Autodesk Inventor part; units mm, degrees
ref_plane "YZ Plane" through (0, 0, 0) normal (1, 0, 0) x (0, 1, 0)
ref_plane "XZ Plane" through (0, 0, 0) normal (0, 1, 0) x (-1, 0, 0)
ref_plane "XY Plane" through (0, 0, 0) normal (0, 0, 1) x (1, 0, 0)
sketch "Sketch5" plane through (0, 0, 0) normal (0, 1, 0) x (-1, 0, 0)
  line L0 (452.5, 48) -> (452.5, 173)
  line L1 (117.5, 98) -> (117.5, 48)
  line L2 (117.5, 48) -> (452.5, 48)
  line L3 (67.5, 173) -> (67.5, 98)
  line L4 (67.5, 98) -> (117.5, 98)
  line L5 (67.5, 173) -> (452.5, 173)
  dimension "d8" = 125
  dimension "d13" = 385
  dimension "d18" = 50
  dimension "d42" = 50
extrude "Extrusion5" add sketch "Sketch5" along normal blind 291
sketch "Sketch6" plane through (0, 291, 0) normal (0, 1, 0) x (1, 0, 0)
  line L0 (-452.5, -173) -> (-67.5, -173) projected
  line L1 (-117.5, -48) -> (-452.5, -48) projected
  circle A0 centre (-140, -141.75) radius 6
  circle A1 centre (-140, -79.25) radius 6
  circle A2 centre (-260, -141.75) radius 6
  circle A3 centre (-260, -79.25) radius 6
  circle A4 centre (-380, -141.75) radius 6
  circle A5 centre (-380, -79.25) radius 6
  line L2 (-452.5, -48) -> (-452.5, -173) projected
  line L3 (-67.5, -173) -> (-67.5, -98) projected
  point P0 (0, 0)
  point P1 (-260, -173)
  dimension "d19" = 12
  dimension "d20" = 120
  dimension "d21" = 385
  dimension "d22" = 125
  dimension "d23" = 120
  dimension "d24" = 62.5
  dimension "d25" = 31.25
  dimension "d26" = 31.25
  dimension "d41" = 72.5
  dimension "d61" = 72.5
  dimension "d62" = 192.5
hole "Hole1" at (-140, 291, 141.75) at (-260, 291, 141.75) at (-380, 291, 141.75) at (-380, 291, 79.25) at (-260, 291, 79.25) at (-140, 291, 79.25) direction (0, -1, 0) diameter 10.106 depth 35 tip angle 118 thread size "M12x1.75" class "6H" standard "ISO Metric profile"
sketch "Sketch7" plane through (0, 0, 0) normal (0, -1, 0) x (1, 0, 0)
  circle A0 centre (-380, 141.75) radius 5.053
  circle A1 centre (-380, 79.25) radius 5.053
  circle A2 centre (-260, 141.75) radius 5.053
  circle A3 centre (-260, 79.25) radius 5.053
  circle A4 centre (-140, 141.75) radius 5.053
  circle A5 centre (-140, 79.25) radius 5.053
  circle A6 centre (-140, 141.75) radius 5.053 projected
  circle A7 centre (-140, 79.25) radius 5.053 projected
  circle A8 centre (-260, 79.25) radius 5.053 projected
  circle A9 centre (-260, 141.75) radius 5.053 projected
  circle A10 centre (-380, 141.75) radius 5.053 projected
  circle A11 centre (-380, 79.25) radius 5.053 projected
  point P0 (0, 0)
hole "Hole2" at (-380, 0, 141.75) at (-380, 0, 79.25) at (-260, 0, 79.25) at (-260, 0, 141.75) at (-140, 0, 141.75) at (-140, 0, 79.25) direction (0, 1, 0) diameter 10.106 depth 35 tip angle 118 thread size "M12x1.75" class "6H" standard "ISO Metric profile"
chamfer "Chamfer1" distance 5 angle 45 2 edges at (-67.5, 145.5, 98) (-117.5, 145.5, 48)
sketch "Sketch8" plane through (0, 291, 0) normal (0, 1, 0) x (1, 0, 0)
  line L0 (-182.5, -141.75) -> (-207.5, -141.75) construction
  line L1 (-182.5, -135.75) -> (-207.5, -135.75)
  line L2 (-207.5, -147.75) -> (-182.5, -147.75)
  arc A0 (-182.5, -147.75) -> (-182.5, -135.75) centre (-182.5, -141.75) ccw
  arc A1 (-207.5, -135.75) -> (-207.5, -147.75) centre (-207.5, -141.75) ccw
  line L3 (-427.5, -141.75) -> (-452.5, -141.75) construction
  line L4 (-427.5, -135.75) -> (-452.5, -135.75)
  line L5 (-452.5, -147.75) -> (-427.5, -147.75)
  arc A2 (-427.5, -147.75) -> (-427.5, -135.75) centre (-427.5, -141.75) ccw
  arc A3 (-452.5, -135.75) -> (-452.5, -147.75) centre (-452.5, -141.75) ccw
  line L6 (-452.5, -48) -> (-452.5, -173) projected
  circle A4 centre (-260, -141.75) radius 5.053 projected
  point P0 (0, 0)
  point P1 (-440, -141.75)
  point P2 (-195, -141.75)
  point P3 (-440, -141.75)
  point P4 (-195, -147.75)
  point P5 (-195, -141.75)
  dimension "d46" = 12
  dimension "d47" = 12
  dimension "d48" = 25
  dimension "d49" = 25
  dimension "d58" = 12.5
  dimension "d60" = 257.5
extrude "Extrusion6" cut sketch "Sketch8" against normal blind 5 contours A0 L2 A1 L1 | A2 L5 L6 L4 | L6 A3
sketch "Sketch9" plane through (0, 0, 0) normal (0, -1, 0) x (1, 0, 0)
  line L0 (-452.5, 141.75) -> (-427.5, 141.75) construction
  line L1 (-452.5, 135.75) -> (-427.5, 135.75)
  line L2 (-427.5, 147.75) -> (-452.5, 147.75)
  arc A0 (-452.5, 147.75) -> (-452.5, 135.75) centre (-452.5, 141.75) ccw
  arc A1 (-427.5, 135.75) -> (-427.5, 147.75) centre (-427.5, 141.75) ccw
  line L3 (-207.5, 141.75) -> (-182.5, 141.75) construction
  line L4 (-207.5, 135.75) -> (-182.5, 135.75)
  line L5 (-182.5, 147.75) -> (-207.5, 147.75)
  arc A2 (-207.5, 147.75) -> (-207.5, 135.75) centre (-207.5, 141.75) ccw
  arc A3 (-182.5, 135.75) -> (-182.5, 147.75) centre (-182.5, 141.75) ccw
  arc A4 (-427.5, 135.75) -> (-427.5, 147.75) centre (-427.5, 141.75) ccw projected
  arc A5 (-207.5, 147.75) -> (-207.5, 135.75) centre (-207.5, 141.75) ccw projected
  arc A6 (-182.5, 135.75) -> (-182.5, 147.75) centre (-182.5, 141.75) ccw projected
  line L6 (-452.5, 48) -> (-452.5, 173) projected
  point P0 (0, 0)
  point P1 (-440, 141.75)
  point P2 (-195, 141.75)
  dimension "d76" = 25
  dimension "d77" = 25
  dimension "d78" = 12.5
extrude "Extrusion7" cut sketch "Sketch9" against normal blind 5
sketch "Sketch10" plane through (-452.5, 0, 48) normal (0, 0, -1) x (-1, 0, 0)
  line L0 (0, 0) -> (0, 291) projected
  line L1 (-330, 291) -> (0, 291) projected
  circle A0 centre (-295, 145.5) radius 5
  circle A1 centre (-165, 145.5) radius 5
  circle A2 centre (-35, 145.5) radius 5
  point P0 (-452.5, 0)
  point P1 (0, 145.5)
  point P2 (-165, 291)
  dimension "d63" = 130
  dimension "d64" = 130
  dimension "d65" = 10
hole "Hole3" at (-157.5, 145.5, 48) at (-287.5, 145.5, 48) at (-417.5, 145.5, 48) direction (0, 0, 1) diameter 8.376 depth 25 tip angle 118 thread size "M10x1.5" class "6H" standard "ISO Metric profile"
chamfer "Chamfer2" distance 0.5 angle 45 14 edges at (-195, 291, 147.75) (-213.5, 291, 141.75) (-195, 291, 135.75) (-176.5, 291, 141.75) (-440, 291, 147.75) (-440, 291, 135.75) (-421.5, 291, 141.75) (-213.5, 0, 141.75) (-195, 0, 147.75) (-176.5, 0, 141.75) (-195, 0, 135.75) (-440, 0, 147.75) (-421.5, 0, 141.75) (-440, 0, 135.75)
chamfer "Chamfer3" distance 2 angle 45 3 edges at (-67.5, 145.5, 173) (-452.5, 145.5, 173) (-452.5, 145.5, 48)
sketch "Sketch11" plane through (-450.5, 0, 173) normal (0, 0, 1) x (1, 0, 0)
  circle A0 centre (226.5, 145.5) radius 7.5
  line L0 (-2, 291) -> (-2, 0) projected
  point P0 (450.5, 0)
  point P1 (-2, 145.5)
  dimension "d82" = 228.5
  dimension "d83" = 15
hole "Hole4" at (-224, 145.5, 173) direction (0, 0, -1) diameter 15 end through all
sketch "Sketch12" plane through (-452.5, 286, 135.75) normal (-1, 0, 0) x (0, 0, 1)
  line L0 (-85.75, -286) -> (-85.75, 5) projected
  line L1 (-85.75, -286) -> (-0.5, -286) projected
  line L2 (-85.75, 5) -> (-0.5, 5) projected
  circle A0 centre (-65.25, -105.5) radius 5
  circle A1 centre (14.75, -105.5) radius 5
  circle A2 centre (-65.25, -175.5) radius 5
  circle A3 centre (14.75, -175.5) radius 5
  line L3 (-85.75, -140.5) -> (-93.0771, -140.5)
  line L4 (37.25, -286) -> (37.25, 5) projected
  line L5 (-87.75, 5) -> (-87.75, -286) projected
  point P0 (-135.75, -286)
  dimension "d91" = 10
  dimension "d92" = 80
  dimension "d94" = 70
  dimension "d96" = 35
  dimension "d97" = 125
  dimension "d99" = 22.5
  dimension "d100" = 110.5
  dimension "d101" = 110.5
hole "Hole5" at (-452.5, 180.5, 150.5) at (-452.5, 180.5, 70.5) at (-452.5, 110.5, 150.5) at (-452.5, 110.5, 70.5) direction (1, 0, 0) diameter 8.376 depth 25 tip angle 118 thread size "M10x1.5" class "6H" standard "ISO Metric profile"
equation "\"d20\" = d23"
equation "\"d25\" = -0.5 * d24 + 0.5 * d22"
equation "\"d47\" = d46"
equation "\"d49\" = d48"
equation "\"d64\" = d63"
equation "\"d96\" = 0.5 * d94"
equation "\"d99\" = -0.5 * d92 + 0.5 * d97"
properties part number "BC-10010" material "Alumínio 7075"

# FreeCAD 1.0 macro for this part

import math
import FreeCAD as App
import Part
import Sketcher

V = App.Vector


def edges_at(feature, points):
    """Names of the edges that pass closest to the given points."""
    edges = feature.Shape.Edges
    near = lambda p: min(range(len(edges)), key=lambda i: edges[i].distToShape(Part.Vertex(*p))[0])
    return sorted({f"Edge{near(p) + 1}" for p in points})


def add_polygon(sketch, points):
    """Adds a closed chain of lines whose ends are joined by coincident constraints."""
    first, n = sketch.GeometryCount, len(points)
    for a, b in zip(points, points[1:] + points[:1]):
        sketch.addGeometry(Part.LineSegment(App.Vector(*a, 0), App.Vector(*b, 0)), False)
    for i in range(n):
        sketch.addConstraint(Sketcher.Constraint("Coincident", first + i, 2, first + (i + 1) % n, 1))

doc = App.newDocument("Part")
body = doc.addObject("PartDesign::Body", "Body")

# Sketch on XZ plane
sketch1 = body.newObject("Sketcher::SketchObject", "Sketch")
sketch1.AttachmentSupport = (doc.getObject("XZ_Plane"), [""])
sketch1.MapMode = "FlatFace"
add_polygon(sketch1, [(-117.5, 48), (-452.5, 48), (-452.5, 173), (-67.5, 173), (-67.5, 98), (-117.5, 98)])  # lines 0-5
sketch1.addConstraint(Sketcher.Constraint("Horizontal", 0))
sketch1.addConstraint(Sketcher.Constraint("Vertical", 1))
sketch1.addConstraint(Sketcher.Constraint("Horizontal", 2))
sketch1.addConstraint(Sketcher.Constraint("Vertical", 3))
sketch1.addConstraint(Sketcher.Constraint("Horizontal", 4))
sketch1.addConstraint(Sketcher.Constraint("Vertical", 5))
sketch1.addConstraint(Sketcher.Constraint("Equal", 4, 5))
sketch1.addConstraint(Sketcher.Constraint("DistanceX", 2, 1, 2, 2, 385.0))
sketch1.addConstraint(Sketcher.Constraint("DistanceX", 4, 2, 4, 1, 50.0))
sketch1.addConstraint(Sketcher.Constraint("DistanceY", 1, 1, 1, 2, 125.0))
sketch1.addConstraint(Sketcher.Constraint("DistanceY", -1, 1, 0, 2, 48.0))
sketch1.addConstraint(Sketcher.Constraint("DistanceX", 0, 2, -1, 1, 452.5))
pad1 = body.newObject("PartDesign::Pad", "Pad")
pad1.Profile = sketch1
pad1.Length = 291
pad1.Reversed = True

# Sketch on XZ plane
sketch2 = body.newObject("Sketcher::SketchObject", "Sketch001")
sketch2.AttachmentSupport = (doc.getObject("XZ_Plane"), [""])
sketch2.MapMode = "FlatFace"
sketch2.AttachmentOffset = App.Placement(V(0, 0, -291), App.Rotation())
sketch2.addGeometry(Part.Circle(V(-140, 141.75, 0), V(0, 0, 1), 5.053), False)
sketch2.addGeometry(Part.Circle(V(-260, 141.75, 0), V(0, 0, 1), 5.053), False)
sketch2.addGeometry(Part.Circle(V(-380, 141.75, 0), V(0, 0, 1), 5.053), False)
sketch2.addGeometry(Part.Circle(V(-380, 79.25, 0), V(0, 0, 1), 5.053), False)
sketch2.addGeometry(Part.Circle(V(-260, 79.25, 0), V(0, 0, 1), 5.053), False)
sketch2.addGeometry(Part.Circle(V(-140, 79.25, 0), V(0, 0, 1), 5.053), False)
sketch2.addConstraint(Sketcher.Constraint("Equal", 0, 1))
sketch2.addConstraint(Sketcher.Constraint("Equal", 1, 2))
sketch2.addConstraint(Sketcher.Constraint("Equal", 2, 3))
sketch2.addConstraint(Sketcher.Constraint("Equal", 3, 4))
sketch2.addConstraint(Sketcher.Constraint("Equal", 4, 5))
sketch2.addConstraint(Sketcher.Constraint("Horizontal", 0, 3, 1, 3))
sketch2.addConstraint(Sketcher.Constraint("Horizontal", 1, 3, 2, 3))
sketch2.addConstraint(Sketcher.Constraint("Horizontal", 3, 3, 4, 3))
sketch2.addConstraint(Sketcher.Constraint("Horizontal", 4, 3, 5, 3))
sketch2.addConstraint(Sketcher.Constraint("Vertical", 2, 3, 3, 3))
sketch2.addConstraint(Sketcher.Constraint("Vertical", 1, 3, 4, 3))
sketch2.addConstraint(Sketcher.Constraint("Vertical", 0, 3, 5, 3))
sketch2.addConstraint(Sketcher.Constraint("Diameter", 0, 10.106))
sketch2.addConstraint(Sketcher.Constraint("DistanceX", 0, 3, -1, 1, 140.0))
sketch2.addConstraint(Sketcher.Constraint("DistanceX", 1, 3, -1, 1, 260.0))
sketch2.addConstraint(Sketcher.Constraint("DistanceX", 2, 3, -1, 1, 380.0))
sketch2.addConstraint(Sketcher.Constraint("DistanceY", 3, 3, 2, 3, 62.5))
sketch2.addConstraint(Sketcher.Constraint("DistanceY", -1, 1, 0, 3, 141.75))
doc.recompute()
hole = body.newObject("PartDesign::Hole", "Hole")
hole.Profile = sketch2
hole.ThreadType = "None"
hole.Diameter = 10.106
hole.DepthType = "Dimension"
hole.Depth = 35
hole.DrillPoint = "Angled"
hole.DrillPointAngle = 118
hole.Reversed = True

# Sketch on XZ plane
sketch3 = body.newObject("Sketcher::SketchObject", "Sketch002")
sketch3.AttachmentSupport = (doc.getObject("XZ_Plane"), [""])
sketch3.MapMode = "FlatFace"
sketch3.addGeometry(Part.Circle(V(-380, 141.75, 0), V(0, 0, 1), 5.053), False)
sketch3.addGeometry(Part.Circle(V(-380, 79.25, 0), V(0, 0, 1), 5.053), False)
sketch3.addGeometry(Part.Circle(V(-260, 79.25, 0), V(0, 0, 1), 5.053), False)
sketch3.addGeometry(Part.Circle(V(-260, 141.75, 0), V(0, 0, 1), 5.053), False)
sketch3.addGeometry(Part.Circle(V(-140, 141.75, 0), V(0, 0, 1), 5.053), False)
sketch3.addGeometry(Part.Circle(V(-140, 79.25, 0), V(0, 0, 1), 5.053), False)
sketch3.addConstraint(Sketcher.Constraint("Equal", 0, 1))
sketch3.addConstraint(Sketcher.Constraint("Equal", 1, 2))
sketch3.addConstraint(Sketcher.Constraint("Equal", 2, 3))
sketch3.addConstraint(Sketcher.Constraint("Equal", 3, 4))
sketch3.addConstraint(Sketcher.Constraint("Equal", 4, 5))
sketch3.addConstraint(Sketcher.Constraint("Horizontal", 1, 3, 2, 3))
sketch3.addConstraint(Sketcher.Constraint("Horizontal", 0, 3, 3, 3))
sketch3.addConstraint(Sketcher.Constraint("Horizontal", 3, 3, 4, 3))
sketch3.addConstraint(Sketcher.Constraint("Horizontal", 2, 3, 5, 3))
sketch3.addConstraint(Sketcher.Constraint("Vertical", 0, 3, 1, 3))
sketch3.addConstraint(Sketcher.Constraint("Vertical", 2, 3, 3, 3))
sketch3.addConstraint(Sketcher.Constraint("Vertical", 4, 3, 5, 3))
sketch3.addConstraint(Sketcher.Constraint("Diameter", 0, 10.106))
sketch3.addConstraint(Sketcher.Constraint("DistanceX", 0, 3, -1, 1, 380.0))
sketch3.addConstraint(Sketcher.Constraint("DistanceX", 2, 3, -1, 1, 260.0))
sketch3.addConstraint(Sketcher.Constraint("DistanceX", 4, 3, -1, 1, 140.0))
sketch3.addConstraint(Sketcher.Constraint("DistanceY", 1, 3, 0, 3, 62.5))
sketch3.addConstraint(Sketcher.Constraint("DistanceY", -1, 1, 0, 3, 141.75))
doc.recompute()
hole2 = body.newObject("PartDesign::Hole", "Hole001")
hole2.Profile = sketch3
hole2.ThreadType = "None"
hole2.Diameter = 10.106
hole2.DepthType = "Dimension"
hole2.Depth = 35
hole2.DrillPoint = "Angled"
hole2.DrillPointAngle = 118
doc.recompute()

chamfer = body.newObject("PartDesign::Chamfer", "Chamfer")
chamfer.Base = (hole2, edges_at(hole2, [(-67.5, 145.5, 98), (-117.5, 145.5, 48)]))
chamfer.Size = 5

# Sketch on XZ plane
sketch4 = body.newObject("Sketcher::SketchObject", "Sketch003")
sketch4.AttachmentSupport = (doc.getObject("XZ_Plane"), [""])
sketch4.MapMode = "FlatFace"
sketch4.AttachmentOffset = App.Placement(V(0, 0, -291), App.Rotation())
sketch4.addGeometry(Part.ArcOfCircle(Part.Circle(V(-182.5, 141.75, 0), V(0, 0, 1), 6), math.radians(-90), math.radians(90)), False)
sketch4.addGeometry(Part.LineSegment(V(-182.5, 135.75, 0), V(-207.5, 135.75, 0)), False)
sketch4.addGeometry(Part.ArcOfCircle(Part.Circle(V(-207.5, 141.75, 0), V(0, 0, 1), 6), math.radians(90), math.radians(270)), False)
sketch4.addGeometry(Part.LineSegment(V(-207.5, 147.75, 0), V(-182.5, 147.75, 0)), False)
sketch4.addGeometry(Part.ArcOfCircle(Part.Circle(V(-427.5, 141.75, 0), V(0, 0, 1), 6), math.radians(-90), math.radians(90)), False)
sketch4.addGeometry(Part.LineSegment(V(-427.5, 135.75, 0), V(-452.5, 135.75, 0)), False)
sketch4.addGeometry(Part.ArcOfCircle(Part.Circle(V(-452.5, 141.75, 0), V(0, 0, 1), 6), math.radians(90), math.radians(270)), False)
sketch4.addGeometry(Part.LineSegment(V(-452.5, 147.75, 0), V(-427.5, 147.75, 0)), False)
sketch4.addConstraint(Sketcher.Constraint("Tangent", 0, 1, 1, 1))
sketch4.addConstraint(Sketcher.Constraint("Tangent", 1, 2, 2, 2))
sketch4.addConstraint(Sketcher.Constraint("Tangent", 2, 1, 3, 1))
sketch4.addConstraint(Sketcher.Constraint("Tangent", 3, 2, 0, 2))
sketch4.addConstraint(Sketcher.Constraint("Tangent", 4, 1, 5, 1))
sketch4.addConstraint(Sketcher.Constraint("Tangent", 5, 2, 6, 2))
sketch4.addConstraint(Sketcher.Constraint("Tangent", 6, 1, 7, 1))
sketch4.addConstraint(Sketcher.Constraint("Tangent", 7, 2, 4, 2))
sketch4.addConstraint(Sketcher.Constraint("Horizontal", 1))
sketch4.addConstraint(Sketcher.Constraint("Horizontal", 3))
sketch4.addConstraint(Sketcher.Constraint("Horizontal", 5))
sketch4.addConstraint(Sketcher.Constraint("Horizontal", 7))
sketch4.addConstraint(Sketcher.Constraint("Equal", 2, 4))
sketch4.addConstraint(Sketcher.Constraint("Horizontal", 2, 3, 4, 3))
sketch4.addConstraint(Sketcher.Constraint("Equal", 3, 5))
sketch4.addConstraint(Sketcher.Constraint("Radius", 0, 6.0))
sketch4.addConstraint(Sketcher.Constraint("DistanceX", 1, 2, 1, 1, 25.0))
sketch4.addConstraint(Sketcher.Constraint("DistanceX", 4, 3, 2, 3, 220.0))
sketch4.addConstraint(Sketcher.Constraint("DistanceX", 0, 3, -1, 1, 182.5))
sketch4.addConstraint(Sketcher.Constraint("DistanceY", -1, 1, 0, 3, 141.75))
pocket1 = body.newObject("PartDesign::Pocket", "Pocket")
pocket1.Profile = sketch4
pocket1.Length = 5
pocket1.Reversed = True

# Sketch on XZ plane
sketch5 = body.newObject("Sketcher::SketchObject", "Sketch004")
sketch5.AttachmentSupport = (doc.getObject("XZ_Plane"), [""])
sketch5.MapMode = "FlatFace"
sketch5.addGeometry(Part.LineSegment(V(-427.5, 147.75, 0), V(-452.5, 147.75, 0)), False)
sketch5.addGeometry(Part.ArcOfCircle(Part.Circle(V(-452.5, 141.75, 0), V(0, 0, 1), 6), math.radians(90), math.radians(270)), False)
sketch5.addGeometry(Part.LineSegment(V(-452.5, 135.75, 0), V(-427.5, 135.75, 0)), False)
sketch5.addGeometry(Part.ArcOfCircle(Part.Circle(V(-427.5, 141.75, 0), V(0, 0, 1), 6), math.radians(-90), math.radians(90)), False)
sketch5.addGeometry(Part.ArcOfCircle(Part.Circle(V(-207.5, 141.75, 0), V(0, 0, 1), 6), math.radians(90), math.radians(270)), False)
sketch5.addGeometry(Part.LineSegment(V(-207.5, 135.75, 0), V(-182.5, 135.75, 0)), False)
sketch5.addGeometry(Part.ArcOfCircle(Part.Circle(V(-182.5, 141.75, 0), V(0, 0, 1), 6), math.radians(-90), math.radians(90)), False)
sketch5.addGeometry(Part.LineSegment(V(-182.5, 147.75, 0), V(-207.5, 147.75, 0)), False)
sketch5.addConstraint(Sketcher.Constraint("Tangent", 0, 2, 1, 1))
sketch5.addConstraint(Sketcher.Constraint("Tangent", 1, 2, 2, 1))
sketch5.addConstraint(Sketcher.Constraint("Tangent", 2, 2, 3, 1))
sketch5.addConstraint(Sketcher.Constraint("Tangent", 3, 2, 0, 1))
sketch5.addConstraint(Sketcher.Constraint("Tangent", 4, 2, 5, 1))
sketch5.addConstraint(Sketcher.Constraint("Tangent", 5, 2, 6, 1))
sketch5.addConstraint(Sketcher.Constraint("Tangent", 6, 2, 7, 1))
sketch5.addConstraint(Sketcher.Constraint("Tangent", 7, 2, 4, 1))
sketch5.addConstraint(Sketcher.Constraint("Horizontal", 0))
sketch5.addConstraint(Sketcher.Constraint("Horizontal", 2))
sketch5.addConstraint(Sketcher.Constraint("Horizontal", 5))
sketch5.addConstraint(Sketcher.Constraint("Horizontal", 7))
sketch5.addConstraint(Sketcher.Constraint("Equal", 3, 4))
sketch5.addConstraint(Sketcher.Constraint("Horizontal", 3, 3, 4, 3))
sketch5.addConstraint(Sketcher.Constraint("Equal", 2, 5))
sketch5.addConstraint(Sketcher.Constraint("DistanceX", 0, 2, 0, 1, 25.0))
sketch5.addConstraint(Sketcher.Constraint("Radius", 1, 6.0))
sketch5.addConstraint(Sketcher.Constraint("DistanceX", 3, 3, 4, 3, 220.0))
sketch5.addConstraint(Sketcher.Constraint("DistanceX", 1, 3, -1, 1, 452.5))
sketch5.addConstraint(Sketcher.Constraint("DistanceY", -1, 1, 1, 3, 141.75))
pocket2 = body.newObject("PartDesign::Pocket", "Pocket001")
pocket2.Profile = sketch5
pocket2.Length = 5

# Sketch on XY plane
sketch6 = body.newObject("Sketcher::SketchObject", "Sketch005")
sketch6.AttachmentSupport = (doc.getObject("XY_Plane"), [""])
sketch6.MapMode = "FlatFace"
sketch6.AttachmentOffset = App.Placement(V(0, 0, 48), App.Rotation())
sketch6.addGeometry(Part.Circle(V(-157.5, 145.5, 0), V(0, 0, 1), 4.188), False)
sketch6.addGeometry(Part.Circle(V(-287.5, 145.5, 0), V(0, 0, 1), 4.188), False)
sketch6.addGeometry(Part.Circle(V(-417.5, 145.5, 0), V(0, 0, 1), 4.188), False)
sketch6.addConstraint(Sketcher.Constraint("Equal", 0, 1))
sketch6.addConstraint(Sketcher.Constraint("Equal", 1, 2))
sketch6.addConstraint(Sketcher.Constraint("Horizontal", 0, 3, 1, 3))
sketch6.addConstraint(Sketcher.Constraint("Horizontal", 1, 3, 2, 3))
sketch6.addConstraint(Sketcher.Constraint("Diameter", 0, 8.376))
sketch6.addConstraint(Sketcher.Constraint("DistanceX", 1, 3, 0, 3, 130.0))
sketch6.addConstraint(Sketcher.Constraint("DistanceX", 2, 3, 1, 3, 130.0))
sketch6.addConstraint(Sketcher.Constraint("DistanceX", 0, 3, -1, 1, 157.5))
sketch6.addConstraint(Sketcher.Constraint("DistanceY", -1, 1, 0, 3, 145.5))
doc.recompute()
hole3 = body.newObject("PartDesign::Hole", "Hole002")
hole3.Profile = sketch6
hole3.ThreadType = "None"
hole3.Diameter = 8.376
hole3.DepthType = "Dimension"
hole3.Depth = 25
hole3.DrillPoint = "Angled"
hole3.DrillPointAngle = 118
hole3.Reversed = True
doc.recompute()

chamfer2 = body.newObject("PartDesign::Chamfer", "Chamfer001")
chamfer2.Base = (hole3, edges_at(hole3, [
    (-195, 291, 147.75),
    (-213.5, 291, 141.75),
    (-195, 291, 135.75),
    (-176.5, 291, 141.75),
    (-440, 291, 147.75),
    (-440, 291, 135.75),
    (-421.5, 291, 141.75),
    (-213.5, 0, 141.75),
    (-195, 0, 147.75),
    (-176.5, 0, 141.75),
    (-195, 0, 135.75),
    (-440, 0, 147.75),
    (-421.5, 0, 141.75),
    (-440, 0, 135.75),
]))
chamfer2.Size = 0.5
doc.recompute()

chamfer3 = body.newObject("PartDesign::Chamfer", "Chamfer002")
chamfer3.Base = (chamfer2, edges_at(chamfer2, [(-67.5, 145.5, 173), (-452.5, 145.5, 173), (-452.5, 145.5, 48)]))
chamfer3.Size = 2

# Sketch on XY plane
sketch7 = body.newObject("Sketcher::SketchObject", "Sketch006")
sketch7.AttachmentSupport = (doc.getObject("XY_Plane"), [""])
sketch7.MapMode = "FlatFace"
sketch7.AttachmentOffset = App.Placement(V(0, 0, 173), App.Rotation())
sketch7.addGeometry(Part.Circle(V(-224, 145.5, 0), V(0, 0, 1), 7.5), False)
sketch7.addConstraint(Sketcher.Constraint("Diameter", 0, 15.0))
sketch7.addConstraint(Sketcher.Constraint("DistanceX", 0, 3, -1, 1, 224.0))
sketch7.addConstraint(Sketcher.Constraint("DistanceY", -1, 1, 0, 3, 145.5))
doc.recompute()
hole4 = body.newObject("PartDesign::Hole", "Hole003")
hole4.Profile = sketch7
hole4.ThreadType = "None"
hole4.Diameter = 15
hole4.DepthType = "ThroughAll"

# Sketch on YZ plane
sketch8 = body.newObject("Sketcher::SketchObject", "Sketch007")
sketch8.AttachmentSupport = (doc.getObject("YZ_Plane"), [""])
sketch8.MapMode = "FlatFace"
sketch8.AttachmentOffset = App.Placement(V(0, 0, -452.5), App.Rotation())
sketch8.addGeometry(Part.Circle(V(180.5, 150.5, 0), V(0, 0, 1), 4.188), False)
sketch8.addGeometry(Part.Circle(V(180.5, 70.5, 0), V(0, 0, 1), 4.188), False)
sketch8.addGeometry(Part.Circle(V(110.5, 150.5, 0), V(0, 0, 1), 4.188), False)
sketch8.addGeometry(Part.Circle(V(110.5, 70.5, 0), V(0, 0, 1), 4.188), False)
sketch8.addConstraint(Sketcher.Constraint("Equal", 0, 1))
sketch8.addConstraint(Sketcher.Constraint("Equal", 1, 2))
sketch8.addConstraint(Sketcher.Constraint("Equal", 2, 3))
sketch8.addConstraint(Sketcher.Constraint("Horizontal", 0, 3, 2, 3))
sketch8.addConstraint(Sketcher.Constraint("Horizontal", 1, 3, 3, 3))
sketch8.addConstraint(Sketcher.Constraint("Vertical", 0, 3, 1, 3))
sketch8.addConstraint(Sketcher.Constraint("Vertical", 2, 3, 3, 3))
sketch8.addConstraint(Sketcher.Constraint("Diameter", 0, 8.376))
sketch8.addConstraint(Sketcher.Constraint("DistanceY", 1, 3, 0, 3, 80.0))
sketch8.addConstraint(Sketcher.Constraint("DistanceX", 2, 3, 0, 3, 70.0))
sketch8.addConstraint(Sketcher.Constraint("DistanceX", -1, 1, 0, 3, 180.5))
sketch8.addConstraint(Sketcher.Constraint("DistanceY", -1, 1, 0, 3, 150.5))
doc.recompute()
hole5 = body.newObject("PartDesign::Hole", "Hole004")
hole5.Profile = sketch8
hole5.ThreadType = "None"
hole5.Diameter = 8.376
hole5.DepthType = "Dimension"
hole5.Depth = 25
hole5.DrillPoint = "Angled"
hole5.DrillPointAngle = 118
hole5.Reversed = True

doc.recompute()
